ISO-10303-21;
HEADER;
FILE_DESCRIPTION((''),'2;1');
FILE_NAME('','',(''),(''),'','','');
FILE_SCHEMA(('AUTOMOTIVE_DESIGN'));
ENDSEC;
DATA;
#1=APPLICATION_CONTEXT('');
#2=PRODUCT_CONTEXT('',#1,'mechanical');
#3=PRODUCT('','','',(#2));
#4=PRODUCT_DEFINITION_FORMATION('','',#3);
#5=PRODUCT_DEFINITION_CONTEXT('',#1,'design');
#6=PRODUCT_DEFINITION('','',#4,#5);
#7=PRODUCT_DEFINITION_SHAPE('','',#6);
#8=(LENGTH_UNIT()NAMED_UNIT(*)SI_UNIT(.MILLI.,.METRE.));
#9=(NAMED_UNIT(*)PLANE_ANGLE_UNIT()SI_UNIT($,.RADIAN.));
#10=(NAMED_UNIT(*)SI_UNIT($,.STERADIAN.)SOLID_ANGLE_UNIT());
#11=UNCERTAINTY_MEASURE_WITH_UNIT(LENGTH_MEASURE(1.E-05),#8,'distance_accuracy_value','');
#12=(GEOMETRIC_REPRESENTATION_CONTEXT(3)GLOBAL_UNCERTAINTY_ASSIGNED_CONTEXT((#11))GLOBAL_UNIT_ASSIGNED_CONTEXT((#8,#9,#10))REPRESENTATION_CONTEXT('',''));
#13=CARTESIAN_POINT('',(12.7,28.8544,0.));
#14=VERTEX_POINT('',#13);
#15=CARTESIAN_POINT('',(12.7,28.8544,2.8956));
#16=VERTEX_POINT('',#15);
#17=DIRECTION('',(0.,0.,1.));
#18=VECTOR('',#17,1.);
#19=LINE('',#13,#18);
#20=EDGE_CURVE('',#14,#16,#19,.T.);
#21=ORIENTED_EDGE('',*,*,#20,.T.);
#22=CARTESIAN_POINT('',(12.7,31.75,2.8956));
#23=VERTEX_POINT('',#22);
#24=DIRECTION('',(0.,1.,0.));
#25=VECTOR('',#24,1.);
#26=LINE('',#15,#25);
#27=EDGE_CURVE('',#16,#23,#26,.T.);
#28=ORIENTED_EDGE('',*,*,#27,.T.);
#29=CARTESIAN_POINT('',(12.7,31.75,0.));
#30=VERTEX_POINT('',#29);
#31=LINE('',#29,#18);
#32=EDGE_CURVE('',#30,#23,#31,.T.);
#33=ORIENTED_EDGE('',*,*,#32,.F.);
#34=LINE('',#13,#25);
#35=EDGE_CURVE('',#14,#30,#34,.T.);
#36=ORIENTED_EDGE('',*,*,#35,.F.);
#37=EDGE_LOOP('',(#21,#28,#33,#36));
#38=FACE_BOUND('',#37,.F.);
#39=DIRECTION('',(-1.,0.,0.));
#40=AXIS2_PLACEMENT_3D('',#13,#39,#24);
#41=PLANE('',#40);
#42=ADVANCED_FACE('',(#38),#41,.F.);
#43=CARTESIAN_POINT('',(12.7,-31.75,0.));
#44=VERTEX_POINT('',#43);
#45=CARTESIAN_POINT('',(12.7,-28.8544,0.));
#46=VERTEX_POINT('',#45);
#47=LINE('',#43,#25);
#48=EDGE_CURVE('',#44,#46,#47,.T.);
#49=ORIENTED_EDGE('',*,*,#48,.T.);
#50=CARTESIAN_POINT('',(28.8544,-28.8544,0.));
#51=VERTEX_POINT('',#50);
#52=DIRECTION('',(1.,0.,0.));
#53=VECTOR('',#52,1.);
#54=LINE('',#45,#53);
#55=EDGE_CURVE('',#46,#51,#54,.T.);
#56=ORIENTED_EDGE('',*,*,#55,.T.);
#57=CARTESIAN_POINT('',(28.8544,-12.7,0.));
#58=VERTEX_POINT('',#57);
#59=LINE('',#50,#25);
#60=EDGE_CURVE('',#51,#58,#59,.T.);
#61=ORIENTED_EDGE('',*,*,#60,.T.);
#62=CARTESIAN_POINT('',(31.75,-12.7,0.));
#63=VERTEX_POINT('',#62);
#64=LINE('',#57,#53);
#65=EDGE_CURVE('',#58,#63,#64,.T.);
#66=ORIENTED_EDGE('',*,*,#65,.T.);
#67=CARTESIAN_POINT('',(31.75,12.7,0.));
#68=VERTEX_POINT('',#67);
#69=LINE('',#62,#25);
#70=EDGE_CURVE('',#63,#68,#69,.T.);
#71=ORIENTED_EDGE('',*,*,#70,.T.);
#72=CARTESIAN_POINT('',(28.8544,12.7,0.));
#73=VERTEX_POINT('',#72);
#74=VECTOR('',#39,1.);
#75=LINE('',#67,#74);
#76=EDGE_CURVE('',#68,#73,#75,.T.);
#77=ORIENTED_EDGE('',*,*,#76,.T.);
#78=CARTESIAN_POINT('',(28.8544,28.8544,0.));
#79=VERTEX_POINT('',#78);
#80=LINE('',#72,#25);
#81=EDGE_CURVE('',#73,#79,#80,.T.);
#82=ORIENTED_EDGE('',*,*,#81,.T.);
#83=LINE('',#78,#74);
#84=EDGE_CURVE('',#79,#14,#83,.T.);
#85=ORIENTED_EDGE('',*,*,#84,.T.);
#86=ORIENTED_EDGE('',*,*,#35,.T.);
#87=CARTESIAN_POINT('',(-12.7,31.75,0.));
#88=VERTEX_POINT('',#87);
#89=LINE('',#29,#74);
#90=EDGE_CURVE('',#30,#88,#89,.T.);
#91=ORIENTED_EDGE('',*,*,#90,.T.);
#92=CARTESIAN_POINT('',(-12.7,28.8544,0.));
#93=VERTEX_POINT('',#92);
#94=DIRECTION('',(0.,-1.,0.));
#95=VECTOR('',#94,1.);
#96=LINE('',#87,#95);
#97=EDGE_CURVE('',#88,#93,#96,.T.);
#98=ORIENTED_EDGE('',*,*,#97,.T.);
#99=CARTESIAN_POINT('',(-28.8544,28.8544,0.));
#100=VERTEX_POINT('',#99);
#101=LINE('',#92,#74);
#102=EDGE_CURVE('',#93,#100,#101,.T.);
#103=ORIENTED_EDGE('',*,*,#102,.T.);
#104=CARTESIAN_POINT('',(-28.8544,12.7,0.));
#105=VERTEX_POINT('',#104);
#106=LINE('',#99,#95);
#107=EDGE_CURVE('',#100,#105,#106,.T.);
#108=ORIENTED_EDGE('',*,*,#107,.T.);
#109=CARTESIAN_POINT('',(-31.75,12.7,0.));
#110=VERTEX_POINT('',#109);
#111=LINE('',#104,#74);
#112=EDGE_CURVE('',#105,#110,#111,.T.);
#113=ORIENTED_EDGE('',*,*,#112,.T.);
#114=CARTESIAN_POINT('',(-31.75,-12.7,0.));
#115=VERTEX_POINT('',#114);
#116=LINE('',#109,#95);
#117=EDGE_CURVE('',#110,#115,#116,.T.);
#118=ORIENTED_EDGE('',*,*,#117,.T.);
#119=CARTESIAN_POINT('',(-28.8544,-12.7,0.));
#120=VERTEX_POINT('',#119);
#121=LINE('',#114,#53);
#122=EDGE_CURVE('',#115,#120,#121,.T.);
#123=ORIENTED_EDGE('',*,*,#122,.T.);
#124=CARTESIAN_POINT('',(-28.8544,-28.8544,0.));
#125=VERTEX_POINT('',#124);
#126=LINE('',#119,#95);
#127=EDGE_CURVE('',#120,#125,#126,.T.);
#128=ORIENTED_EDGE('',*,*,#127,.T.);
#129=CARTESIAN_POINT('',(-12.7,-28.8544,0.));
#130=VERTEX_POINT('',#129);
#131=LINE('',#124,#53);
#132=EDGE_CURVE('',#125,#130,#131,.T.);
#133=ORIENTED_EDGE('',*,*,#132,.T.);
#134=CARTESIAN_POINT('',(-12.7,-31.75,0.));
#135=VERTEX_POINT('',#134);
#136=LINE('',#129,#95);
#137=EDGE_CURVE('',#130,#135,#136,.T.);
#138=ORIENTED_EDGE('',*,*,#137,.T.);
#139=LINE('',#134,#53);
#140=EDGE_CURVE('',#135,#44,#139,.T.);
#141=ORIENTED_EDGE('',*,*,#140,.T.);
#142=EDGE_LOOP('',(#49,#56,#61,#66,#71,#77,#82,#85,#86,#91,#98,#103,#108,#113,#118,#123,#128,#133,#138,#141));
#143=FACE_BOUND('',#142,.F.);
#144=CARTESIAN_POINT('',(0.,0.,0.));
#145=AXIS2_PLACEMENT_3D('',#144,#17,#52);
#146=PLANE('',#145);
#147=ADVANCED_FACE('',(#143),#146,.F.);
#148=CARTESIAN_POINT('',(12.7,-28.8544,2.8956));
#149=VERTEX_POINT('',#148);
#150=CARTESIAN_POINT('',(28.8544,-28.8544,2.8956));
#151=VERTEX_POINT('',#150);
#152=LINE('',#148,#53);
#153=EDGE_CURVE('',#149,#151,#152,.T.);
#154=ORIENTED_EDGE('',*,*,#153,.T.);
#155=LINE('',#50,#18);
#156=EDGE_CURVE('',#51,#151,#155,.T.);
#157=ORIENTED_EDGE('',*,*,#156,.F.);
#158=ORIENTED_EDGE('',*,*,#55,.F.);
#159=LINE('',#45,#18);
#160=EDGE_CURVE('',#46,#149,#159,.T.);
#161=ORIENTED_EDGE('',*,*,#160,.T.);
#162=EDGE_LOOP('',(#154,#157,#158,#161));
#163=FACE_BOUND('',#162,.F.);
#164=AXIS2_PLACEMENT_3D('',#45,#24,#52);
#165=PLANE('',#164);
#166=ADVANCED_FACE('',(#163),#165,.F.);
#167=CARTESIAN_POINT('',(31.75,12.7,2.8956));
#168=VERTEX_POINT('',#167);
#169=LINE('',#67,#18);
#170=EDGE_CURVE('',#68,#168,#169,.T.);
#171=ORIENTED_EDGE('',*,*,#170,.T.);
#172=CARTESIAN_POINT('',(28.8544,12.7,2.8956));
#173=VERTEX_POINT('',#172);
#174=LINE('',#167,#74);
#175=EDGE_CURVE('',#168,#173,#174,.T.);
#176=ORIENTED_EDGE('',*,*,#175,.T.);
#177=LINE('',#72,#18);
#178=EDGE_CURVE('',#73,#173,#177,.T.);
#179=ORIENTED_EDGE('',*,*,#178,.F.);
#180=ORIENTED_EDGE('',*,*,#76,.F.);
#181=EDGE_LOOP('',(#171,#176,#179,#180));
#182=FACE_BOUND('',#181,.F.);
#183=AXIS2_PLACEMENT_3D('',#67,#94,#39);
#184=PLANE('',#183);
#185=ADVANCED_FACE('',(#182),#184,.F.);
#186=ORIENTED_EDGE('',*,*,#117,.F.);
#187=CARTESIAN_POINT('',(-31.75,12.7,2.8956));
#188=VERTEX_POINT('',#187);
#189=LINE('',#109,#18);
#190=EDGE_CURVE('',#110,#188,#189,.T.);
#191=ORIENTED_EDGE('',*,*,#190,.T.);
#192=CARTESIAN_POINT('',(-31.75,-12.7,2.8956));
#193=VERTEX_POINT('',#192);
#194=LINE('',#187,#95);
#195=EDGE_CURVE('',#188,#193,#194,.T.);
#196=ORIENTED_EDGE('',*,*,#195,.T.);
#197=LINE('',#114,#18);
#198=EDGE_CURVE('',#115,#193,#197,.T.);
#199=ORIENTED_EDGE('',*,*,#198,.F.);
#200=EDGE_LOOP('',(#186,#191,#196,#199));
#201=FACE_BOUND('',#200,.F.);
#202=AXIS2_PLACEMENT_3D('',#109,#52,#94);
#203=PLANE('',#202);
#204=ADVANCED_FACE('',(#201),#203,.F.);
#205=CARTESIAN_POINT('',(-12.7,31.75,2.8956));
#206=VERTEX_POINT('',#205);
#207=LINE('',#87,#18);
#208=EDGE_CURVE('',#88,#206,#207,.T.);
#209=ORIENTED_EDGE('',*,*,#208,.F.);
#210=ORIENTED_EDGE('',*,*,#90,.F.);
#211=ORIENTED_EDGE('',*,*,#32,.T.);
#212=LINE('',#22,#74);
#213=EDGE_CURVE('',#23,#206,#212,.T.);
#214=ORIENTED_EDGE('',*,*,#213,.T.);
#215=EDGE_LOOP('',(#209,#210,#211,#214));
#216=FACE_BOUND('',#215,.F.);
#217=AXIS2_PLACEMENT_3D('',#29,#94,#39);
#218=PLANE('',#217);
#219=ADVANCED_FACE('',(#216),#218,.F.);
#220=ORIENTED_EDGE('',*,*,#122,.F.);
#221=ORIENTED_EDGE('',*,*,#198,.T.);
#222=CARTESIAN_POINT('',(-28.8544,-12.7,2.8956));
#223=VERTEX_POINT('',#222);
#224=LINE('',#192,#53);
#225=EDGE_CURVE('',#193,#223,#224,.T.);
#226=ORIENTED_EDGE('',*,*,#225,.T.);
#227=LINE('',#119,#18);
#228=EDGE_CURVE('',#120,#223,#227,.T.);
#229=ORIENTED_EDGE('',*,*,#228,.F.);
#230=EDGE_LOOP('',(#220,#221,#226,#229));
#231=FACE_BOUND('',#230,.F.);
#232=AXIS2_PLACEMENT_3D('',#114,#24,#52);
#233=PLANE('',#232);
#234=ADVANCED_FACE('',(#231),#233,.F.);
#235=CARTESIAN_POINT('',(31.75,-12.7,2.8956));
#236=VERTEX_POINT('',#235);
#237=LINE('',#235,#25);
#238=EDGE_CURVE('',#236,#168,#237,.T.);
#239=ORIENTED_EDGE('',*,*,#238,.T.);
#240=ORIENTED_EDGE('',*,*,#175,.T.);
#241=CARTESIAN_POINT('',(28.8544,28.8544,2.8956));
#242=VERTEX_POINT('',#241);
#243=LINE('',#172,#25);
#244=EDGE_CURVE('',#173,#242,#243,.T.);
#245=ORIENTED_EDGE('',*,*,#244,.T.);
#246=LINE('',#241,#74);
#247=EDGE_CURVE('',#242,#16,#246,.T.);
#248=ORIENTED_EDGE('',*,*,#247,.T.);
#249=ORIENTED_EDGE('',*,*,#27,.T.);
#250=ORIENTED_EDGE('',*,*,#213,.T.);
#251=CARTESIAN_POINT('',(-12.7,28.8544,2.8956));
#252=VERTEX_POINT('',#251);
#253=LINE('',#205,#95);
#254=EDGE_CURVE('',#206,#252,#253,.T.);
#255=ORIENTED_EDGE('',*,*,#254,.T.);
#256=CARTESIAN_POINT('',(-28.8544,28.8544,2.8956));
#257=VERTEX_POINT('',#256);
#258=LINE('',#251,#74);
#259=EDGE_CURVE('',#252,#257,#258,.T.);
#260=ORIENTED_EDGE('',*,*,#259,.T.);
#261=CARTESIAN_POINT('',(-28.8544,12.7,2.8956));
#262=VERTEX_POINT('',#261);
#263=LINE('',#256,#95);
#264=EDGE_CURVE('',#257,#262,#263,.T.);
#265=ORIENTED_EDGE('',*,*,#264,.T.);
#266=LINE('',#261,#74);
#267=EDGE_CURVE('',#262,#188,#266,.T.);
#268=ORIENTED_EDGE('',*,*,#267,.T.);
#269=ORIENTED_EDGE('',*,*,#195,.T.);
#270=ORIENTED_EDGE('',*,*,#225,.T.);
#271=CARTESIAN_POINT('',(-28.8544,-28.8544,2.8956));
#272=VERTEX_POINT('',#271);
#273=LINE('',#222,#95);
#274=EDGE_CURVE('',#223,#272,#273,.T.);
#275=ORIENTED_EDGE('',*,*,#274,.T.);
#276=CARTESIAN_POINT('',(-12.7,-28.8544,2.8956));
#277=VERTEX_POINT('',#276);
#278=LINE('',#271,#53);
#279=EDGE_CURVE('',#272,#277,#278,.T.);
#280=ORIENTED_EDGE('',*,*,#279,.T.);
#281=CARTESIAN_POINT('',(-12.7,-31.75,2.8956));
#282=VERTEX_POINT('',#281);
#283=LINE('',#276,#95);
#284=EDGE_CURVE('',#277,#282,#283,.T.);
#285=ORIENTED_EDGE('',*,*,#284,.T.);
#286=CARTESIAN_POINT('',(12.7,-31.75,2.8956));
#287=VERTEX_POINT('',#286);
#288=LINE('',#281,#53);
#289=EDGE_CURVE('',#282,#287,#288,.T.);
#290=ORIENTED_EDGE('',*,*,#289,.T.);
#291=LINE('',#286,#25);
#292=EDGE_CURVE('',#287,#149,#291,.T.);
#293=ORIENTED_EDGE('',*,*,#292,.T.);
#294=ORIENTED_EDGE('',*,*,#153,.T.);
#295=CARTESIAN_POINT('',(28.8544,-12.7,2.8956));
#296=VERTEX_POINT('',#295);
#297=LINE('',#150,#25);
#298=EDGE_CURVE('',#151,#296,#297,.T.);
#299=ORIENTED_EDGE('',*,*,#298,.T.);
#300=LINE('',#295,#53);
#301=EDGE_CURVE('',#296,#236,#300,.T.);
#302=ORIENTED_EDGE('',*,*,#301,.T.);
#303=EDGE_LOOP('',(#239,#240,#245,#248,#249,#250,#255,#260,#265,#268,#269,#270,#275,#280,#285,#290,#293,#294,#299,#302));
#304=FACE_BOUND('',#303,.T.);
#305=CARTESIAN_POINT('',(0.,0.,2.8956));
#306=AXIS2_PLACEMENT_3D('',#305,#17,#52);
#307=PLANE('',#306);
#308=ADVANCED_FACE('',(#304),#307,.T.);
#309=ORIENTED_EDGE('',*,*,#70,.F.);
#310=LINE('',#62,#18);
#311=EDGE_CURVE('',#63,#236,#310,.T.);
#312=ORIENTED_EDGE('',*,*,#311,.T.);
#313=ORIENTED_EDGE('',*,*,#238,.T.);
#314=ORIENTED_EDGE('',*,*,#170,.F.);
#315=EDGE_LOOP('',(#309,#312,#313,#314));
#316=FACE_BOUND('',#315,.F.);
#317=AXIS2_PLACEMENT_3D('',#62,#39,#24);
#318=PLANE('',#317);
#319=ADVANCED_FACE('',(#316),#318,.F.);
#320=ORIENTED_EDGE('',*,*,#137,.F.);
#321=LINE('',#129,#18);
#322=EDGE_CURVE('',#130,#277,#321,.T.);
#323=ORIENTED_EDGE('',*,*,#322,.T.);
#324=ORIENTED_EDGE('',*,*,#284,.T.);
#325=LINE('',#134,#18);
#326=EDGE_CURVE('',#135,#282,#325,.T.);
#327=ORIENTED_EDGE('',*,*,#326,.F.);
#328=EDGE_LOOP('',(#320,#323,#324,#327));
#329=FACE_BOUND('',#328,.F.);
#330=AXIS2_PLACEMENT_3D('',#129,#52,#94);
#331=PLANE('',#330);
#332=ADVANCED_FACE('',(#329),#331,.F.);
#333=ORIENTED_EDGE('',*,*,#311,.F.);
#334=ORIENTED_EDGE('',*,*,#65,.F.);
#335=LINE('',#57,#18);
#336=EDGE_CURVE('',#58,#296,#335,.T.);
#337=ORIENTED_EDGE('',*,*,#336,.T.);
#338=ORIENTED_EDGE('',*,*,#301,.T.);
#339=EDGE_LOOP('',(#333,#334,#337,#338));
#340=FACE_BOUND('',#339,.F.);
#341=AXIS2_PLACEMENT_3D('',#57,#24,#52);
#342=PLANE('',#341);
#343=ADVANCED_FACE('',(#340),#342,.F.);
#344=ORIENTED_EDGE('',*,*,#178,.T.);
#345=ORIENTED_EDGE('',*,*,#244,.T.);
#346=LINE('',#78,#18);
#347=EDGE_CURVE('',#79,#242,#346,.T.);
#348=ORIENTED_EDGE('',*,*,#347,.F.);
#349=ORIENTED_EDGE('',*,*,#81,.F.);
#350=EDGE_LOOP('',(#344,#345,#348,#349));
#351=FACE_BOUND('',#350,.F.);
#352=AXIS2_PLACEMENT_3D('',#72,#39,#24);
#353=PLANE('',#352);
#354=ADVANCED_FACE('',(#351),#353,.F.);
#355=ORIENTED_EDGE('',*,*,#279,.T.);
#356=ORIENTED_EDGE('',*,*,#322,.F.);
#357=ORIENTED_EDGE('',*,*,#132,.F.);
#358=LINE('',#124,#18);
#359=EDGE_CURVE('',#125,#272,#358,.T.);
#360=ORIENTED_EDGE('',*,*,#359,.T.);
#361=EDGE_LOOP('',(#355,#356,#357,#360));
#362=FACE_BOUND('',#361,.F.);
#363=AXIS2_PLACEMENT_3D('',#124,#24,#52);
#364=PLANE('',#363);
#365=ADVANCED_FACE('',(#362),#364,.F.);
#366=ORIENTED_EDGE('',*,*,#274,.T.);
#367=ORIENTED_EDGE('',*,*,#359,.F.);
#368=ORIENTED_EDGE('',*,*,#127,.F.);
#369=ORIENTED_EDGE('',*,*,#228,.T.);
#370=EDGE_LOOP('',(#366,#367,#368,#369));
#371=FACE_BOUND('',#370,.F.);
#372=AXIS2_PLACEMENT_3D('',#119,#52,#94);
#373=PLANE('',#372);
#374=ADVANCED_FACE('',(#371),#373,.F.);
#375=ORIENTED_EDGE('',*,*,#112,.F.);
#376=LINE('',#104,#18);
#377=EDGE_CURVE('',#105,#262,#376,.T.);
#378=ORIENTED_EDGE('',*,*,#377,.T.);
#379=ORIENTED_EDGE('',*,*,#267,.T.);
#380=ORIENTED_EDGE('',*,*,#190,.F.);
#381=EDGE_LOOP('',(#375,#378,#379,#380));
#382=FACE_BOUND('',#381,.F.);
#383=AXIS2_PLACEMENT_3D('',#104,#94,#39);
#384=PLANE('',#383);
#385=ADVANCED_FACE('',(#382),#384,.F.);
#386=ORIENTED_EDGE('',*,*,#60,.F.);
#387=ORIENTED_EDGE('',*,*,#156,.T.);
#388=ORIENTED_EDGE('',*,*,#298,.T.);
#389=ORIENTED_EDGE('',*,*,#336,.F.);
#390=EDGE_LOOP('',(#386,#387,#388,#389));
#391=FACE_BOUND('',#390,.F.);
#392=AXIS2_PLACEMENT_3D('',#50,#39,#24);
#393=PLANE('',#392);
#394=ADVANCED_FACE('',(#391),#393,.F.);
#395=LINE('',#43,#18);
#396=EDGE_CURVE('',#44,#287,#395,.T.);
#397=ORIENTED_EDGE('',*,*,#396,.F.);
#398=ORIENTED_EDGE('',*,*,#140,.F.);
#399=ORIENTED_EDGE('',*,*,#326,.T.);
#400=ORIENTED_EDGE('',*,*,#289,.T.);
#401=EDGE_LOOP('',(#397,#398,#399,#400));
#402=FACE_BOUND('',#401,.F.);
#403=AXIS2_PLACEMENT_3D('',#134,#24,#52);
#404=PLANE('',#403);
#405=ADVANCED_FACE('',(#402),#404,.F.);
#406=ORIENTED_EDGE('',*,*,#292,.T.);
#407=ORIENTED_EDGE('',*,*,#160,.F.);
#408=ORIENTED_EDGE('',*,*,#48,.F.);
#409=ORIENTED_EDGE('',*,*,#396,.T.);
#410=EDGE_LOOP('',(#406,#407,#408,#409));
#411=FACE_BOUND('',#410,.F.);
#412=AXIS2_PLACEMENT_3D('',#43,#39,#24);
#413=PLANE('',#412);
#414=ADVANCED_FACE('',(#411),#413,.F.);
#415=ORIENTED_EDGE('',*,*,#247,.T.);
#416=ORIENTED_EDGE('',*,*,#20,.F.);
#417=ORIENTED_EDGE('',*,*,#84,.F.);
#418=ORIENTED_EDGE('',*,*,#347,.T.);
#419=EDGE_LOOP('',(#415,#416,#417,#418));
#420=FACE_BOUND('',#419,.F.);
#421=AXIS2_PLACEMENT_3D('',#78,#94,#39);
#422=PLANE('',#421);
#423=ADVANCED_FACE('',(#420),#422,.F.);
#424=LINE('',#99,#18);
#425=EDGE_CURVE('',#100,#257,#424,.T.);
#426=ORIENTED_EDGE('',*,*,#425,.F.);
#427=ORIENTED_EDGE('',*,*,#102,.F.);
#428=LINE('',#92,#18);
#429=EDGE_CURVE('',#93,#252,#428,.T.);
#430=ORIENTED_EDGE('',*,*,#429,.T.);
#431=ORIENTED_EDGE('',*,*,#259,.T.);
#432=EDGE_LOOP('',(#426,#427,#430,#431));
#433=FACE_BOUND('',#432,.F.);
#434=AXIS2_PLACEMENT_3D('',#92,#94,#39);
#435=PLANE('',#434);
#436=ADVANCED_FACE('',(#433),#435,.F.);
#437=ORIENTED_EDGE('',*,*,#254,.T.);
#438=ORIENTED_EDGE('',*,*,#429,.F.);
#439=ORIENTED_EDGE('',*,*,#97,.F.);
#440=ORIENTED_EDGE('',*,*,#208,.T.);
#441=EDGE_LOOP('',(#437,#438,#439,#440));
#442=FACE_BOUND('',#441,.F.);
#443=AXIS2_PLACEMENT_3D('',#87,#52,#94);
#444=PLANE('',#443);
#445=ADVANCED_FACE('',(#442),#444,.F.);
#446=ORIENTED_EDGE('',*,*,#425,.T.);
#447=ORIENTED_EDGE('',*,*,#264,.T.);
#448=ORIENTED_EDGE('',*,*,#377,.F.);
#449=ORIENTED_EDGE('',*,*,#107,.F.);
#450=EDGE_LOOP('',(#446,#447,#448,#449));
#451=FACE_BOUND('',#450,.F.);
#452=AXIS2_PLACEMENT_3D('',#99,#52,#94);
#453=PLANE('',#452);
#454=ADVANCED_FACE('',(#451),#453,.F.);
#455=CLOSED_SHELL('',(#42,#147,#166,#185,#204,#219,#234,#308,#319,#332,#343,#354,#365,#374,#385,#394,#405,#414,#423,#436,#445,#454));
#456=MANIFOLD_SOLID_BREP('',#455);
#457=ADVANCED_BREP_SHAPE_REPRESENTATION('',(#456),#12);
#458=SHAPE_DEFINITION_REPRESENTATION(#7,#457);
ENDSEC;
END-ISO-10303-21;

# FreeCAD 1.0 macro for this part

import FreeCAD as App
import Part
import Sketcher
Q = App.Units.Quantity

doc = App.newDocument("Part")
body = doc.addObject("PartDesign::Body", "Body")

# Sketch on XY plane
sketch1 = body.newObject("Sketcher::SketchObject", "Sketch")
sketch1.AttachmentSupport = (doc.getObject("XY_Plane"), [""])
sketch1.MapMode = "FlatFace"
sketch1.addGeometry([
    Part.LineSegment(App.Vector(-31.75, -12.7, 0), App.Vector(-28.8544, -12.7, 0)),  # 0
    Part.LineSegment(App.Vector(-28.8544, -12.7, 0), App.Vector(-28.8544, -28.8544, 0)),  # 1
    Part.LineSegment(App.Vector(-28.8544, -28.8544, 0), App.Vector(-12.7, -28.8544, 0)),  # 2
    Part.LineSegment(App.Vector(-12.7, -28.8544, 0), App.Vector(-12.7, -31.75, 0)),  # 3
    Part.LineSegment(App.Vector(-12.7, -31.75, 0), App.Vector(12.7, -31.75, 0)),  # 4
    Part.LineSegment(App.Vector(12.7, -31.75, 0), App.Vector(12.7, -28.8544, 0)),  # 5
    Part.LineSegment(App.Vector(12.7, -28.8544, 0), App.Vector(28.8544, -28.8544, 0)),  # 6
    Part.LineSegment(App.Vector(28.8544, -28.8544, 0), App.Vector(28.8544, -12.7, 0)),  # 7
    Part.LineSegment(App.Vector(28.8544, -12.7, 0), App.Vector(31.75, -12.7, 0)),  # 8
    Part.LineSegment(App.Vector(31.75, -12.7, 0), App.Vector(31.75, 12.7, 0)),  # 9
    Part.LineSegment(App.Vector(31.75, 12.7, 0), App.Vector(28.8544, 12.7, 0)),  # 10
    Part.LineSegment(App.Vector(28.8544, 12.7, 0), App.Vector(28.8544, 28.8544, 0)),  # 11
    Part.LineSegment(App.Vector(28.8544, 28.8544, 0), App.Vector(12.7, 28.8544, 0)),  # 12
    Part.LineSegment(App.Vector(12.7, 28.8544, 0), App.Vector(12.7, 31.75, 0)),  # 13
    Part.LineSegment(App.Vector(12.7, 31.75, 0), App.Vector(-12.7, 31.75, 0)),  # 14
    Part.LineSegment(App.Vector(-12.7, 31.75, 0), App.Vector(-12.7, 28.8544, 0)),  # 15
    Part.LineSegment(App.Vector(-12.7, 28.8544, 0), App.Vector(-28.8544, 28.8544, 0)),  # 16
    Part.LineSegment(App.Vector(-28.8544, 28.8544, 0), App.Vector(-28.8544, 12.7, 0)),  # 17
    Part.LineSegment(App.Vector(-28.8544, 12.7, 0), App.Vector(-31.75, 12.7, 0)),  # 18
    Part.LineSegment(App.Vector(-31.75, 12.7, 0), App.Vector(-31.75, -12.7, 0)),  # 19
], False)
sketch1.addConstraint([
    Sketcher.Constraint("Coincident", 0, 2, 1, 1),
    Sketcher.Constraint("Coincident", 1, 2, 2, 1),
    Sketcher.Constraint("Coincident", 2, 2, 3, 1),
    Sketcher.Constraint("Coincident", 3, 2, 4, 1),
    Sketcher.Constraint("Coincident", 4, 2, 5, 1),
    Sketcher.Constraint("Coincident", 5, 2, 6, 1),
    Sketcher.Constraint("Coincident", 6, 2, 7, 1),
    Sketcher.Constraint("Coincident", 7, 2, 8, 1),
    Sketcher.Constraint("Coincident", 8, 2, 9, 1),
    Sketcher.Constraint("Coincident", 9, 2, 10, 1),
    Sketcher.Constraint("Coincident", 10, 2, 11, 1),
    Sketcher.Constraint("Coincident", 11, 2, 12, 1),
    Sketcher.Constraint("Coincident", 12, 2, 13, 1),
    Sketcher.Constraint("Coincident", 13, 2, 14, 1),
    Sketcher.Constraint("Coincident", 14, 2, 15, 1),
    Sketcher.Constraint("Coincident", 15, 2, 16, 1),
    Sketcher.Constraint("Coincident", 16, 2, 17, 1),
    Sketcher.Constraint("Coincident", 17, 2, 18, 1),
    Sketcher.Constraint("Coincident", 18, 2, 19, 1),
    Sketcher.Constraint("Coincident", 19, 2, 0, 1),
    Sketcher.Constraint("Horizontal", 0),
    Sketcher.Constraint("Vertical", 1),
    Sketcher.Constraint("Horizontal", 2),
    Sketcher.Constraint("Vertical", 3),
    Sketcher.Constraint("Horizontal", 4),
    Sketcher.Constraint("Vertical", 5),
    Sketcher.Constraint("Horizontal", 6),
    Sketcher.Constraint("Vertical", 7),
    Sketcher.Constraint("Horizontal", 8),
    Sketcher.Constraint("Vertical", 9),
    Sketcher.Constraint("Horizontal", 10),
    Sketcher.Constraint("Vertical", 11),
    Sketcher.Constraint("Horizontal", 12),
    Sketcher.Constraint("Vertical", 13),
    Sketcher.Constraint("Horizontal", 14),
    Sketcher.Constraint("Vertical", 15),
    Sketcher.Constraint("Horizontal", 16),
    Sketcher.Constraint("Vertical", 17),
    Sketcher.Constraint("Horizontal", 18),
    Sketcher.Constraint("Vertical", 19),
    Sketcher.Constraint("Symmetric", 0, 2, 10, 2, -1, 1),
    Sketcher.Constraint("Symmetric", 2, 2, 12, 2, -1, 1),
    Sketcher.Constraint("Symmetric", 4, 2, 14, 2, -1, 1),
    Sketcher.Constraint("Symmetric", 6, 2, 16, 2, -1, 1),
    Sketcher.Constraint("Symmetric", 8, 2, 18, 2, -1, 1),
    Sketcher.Constraint("Symmetric", 2, 2, 5, 2, -2),
    Sketcher.Constraint("Symmetric", 0, 2, 7, 2, -2),
    Sketcher.Constraint("Equal", 16, 1),
    Sketcher.Constraint("Equal", 18, 3),
    Sketcher.Constraint("Equal", 14, 9),
    Sketcher.Constraint("DistanceX", 4, 1, 4, 2, Q("1 in")),
    Sketcher.Constraint("DistanceX", 0, 1, 0, 2, Q("0.114 in")),
    Sketcher.Constraint("DistanceX", 2, 1, 2, 2, Q("0.636 in")),
])
pad1 = body.newObject("PartDesign::Pad", "Pad")
pad1.Profile = sketch1
pad1.Length = Q("0.114 in")

doc.recompute()
